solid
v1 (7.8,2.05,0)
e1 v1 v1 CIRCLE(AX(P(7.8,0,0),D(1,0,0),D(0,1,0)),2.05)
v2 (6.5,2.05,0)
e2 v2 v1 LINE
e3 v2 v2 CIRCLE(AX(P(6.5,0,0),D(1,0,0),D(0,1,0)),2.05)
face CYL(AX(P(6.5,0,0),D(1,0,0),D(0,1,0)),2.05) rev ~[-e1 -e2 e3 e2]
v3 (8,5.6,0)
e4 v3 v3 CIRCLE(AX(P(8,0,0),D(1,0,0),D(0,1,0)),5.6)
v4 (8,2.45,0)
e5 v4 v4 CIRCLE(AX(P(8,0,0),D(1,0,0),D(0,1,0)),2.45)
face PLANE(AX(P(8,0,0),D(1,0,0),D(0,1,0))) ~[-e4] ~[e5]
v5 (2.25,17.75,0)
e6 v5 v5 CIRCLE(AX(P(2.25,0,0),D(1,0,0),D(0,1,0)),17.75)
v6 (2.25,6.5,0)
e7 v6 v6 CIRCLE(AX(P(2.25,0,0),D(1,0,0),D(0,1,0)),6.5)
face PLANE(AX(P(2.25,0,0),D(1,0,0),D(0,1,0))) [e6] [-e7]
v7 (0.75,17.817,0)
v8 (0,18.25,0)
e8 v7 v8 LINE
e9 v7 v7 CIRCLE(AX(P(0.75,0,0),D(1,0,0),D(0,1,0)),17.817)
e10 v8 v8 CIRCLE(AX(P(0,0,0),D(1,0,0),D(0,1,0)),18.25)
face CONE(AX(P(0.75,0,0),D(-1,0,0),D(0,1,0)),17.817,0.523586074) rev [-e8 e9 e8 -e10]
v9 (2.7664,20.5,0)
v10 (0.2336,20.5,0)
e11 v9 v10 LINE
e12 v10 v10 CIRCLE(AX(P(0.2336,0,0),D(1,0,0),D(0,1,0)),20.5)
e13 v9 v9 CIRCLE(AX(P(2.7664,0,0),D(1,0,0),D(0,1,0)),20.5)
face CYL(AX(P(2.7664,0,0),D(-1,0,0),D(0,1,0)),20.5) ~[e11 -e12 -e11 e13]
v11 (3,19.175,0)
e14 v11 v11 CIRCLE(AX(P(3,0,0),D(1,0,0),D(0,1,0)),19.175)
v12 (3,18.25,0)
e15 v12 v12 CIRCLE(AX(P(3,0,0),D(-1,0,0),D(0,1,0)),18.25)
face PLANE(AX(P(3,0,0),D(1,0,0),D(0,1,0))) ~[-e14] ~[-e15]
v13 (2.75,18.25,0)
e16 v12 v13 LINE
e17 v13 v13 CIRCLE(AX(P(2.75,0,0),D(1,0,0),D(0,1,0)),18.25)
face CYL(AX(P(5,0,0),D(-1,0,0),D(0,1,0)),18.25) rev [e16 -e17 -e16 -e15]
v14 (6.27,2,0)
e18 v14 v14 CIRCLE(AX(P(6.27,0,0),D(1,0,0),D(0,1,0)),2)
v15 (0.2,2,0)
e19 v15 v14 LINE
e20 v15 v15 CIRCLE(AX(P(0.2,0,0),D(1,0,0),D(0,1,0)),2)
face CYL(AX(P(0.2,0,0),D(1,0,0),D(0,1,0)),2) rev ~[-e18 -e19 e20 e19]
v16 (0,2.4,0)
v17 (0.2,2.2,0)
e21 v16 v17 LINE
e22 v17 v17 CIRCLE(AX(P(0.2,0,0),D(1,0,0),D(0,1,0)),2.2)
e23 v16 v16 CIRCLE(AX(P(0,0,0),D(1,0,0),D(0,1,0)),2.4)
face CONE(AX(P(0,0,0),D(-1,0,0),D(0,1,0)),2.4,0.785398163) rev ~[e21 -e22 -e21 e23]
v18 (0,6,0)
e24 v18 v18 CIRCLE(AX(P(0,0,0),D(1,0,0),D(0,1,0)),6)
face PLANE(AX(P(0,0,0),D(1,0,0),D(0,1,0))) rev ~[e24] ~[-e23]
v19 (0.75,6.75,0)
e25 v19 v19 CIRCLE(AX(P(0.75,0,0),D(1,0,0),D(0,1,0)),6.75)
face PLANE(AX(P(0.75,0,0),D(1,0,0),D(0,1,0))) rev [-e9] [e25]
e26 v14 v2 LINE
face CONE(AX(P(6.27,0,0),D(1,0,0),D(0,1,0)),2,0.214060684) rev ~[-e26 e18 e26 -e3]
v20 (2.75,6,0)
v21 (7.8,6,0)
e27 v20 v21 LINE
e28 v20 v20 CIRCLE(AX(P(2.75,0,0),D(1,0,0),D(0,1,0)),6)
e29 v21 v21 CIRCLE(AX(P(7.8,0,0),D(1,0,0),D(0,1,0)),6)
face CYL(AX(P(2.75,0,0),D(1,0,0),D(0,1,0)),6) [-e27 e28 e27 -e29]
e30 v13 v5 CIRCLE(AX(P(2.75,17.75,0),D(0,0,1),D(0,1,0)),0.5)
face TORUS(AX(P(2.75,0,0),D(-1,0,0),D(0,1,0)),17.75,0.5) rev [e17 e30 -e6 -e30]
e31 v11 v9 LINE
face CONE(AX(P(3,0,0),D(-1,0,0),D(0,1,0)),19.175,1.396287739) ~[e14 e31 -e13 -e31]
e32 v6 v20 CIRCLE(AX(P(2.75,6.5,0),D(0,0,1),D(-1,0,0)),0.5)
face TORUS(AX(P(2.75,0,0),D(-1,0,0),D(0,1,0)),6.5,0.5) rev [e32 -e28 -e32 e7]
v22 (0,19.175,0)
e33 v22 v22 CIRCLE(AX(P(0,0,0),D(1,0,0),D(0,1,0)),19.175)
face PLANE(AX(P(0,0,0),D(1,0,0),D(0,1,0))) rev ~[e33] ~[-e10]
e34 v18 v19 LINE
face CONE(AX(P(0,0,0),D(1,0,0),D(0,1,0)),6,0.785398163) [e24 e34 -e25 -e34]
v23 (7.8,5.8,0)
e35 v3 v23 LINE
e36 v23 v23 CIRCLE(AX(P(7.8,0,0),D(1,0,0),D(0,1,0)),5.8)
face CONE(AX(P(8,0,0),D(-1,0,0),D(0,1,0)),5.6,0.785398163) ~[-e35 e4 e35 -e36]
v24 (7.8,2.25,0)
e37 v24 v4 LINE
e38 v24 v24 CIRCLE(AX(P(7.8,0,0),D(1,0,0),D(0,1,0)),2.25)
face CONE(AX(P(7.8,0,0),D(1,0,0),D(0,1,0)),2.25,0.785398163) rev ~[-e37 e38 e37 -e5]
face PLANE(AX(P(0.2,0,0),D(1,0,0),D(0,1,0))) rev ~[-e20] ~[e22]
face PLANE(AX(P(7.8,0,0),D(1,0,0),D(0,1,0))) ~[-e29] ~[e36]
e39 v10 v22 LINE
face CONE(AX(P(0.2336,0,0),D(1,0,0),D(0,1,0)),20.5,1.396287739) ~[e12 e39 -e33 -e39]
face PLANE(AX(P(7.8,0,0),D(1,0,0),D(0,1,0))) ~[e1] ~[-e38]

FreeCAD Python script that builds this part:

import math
import FreeCAD as App
import Part
import Sketcher

V = App.Vector
Q = App.Units.Quantity


def add_polygon(sketch, points):
    """Adds a closed chain of lines whose ends are joined by coincident constraints."""
    first, n = sketch.GeometryCount, len(points)
    for a, b in zip(points, points[1:] + points[:1]):
        sketch.addGeometry(Part.LineSegment(App.Vector(*a, 0), App.Vector(*b, 0)), False)
    for i in range(n):
        sketch.addConstraint(Sketcher.Constraint("Coincident", first + i, 2, first + (i + 1) % n, 1))

doc = App.newDocument("Part")
body = doc.addObject("PartDesign::Body", "Body")

# Sketch on XY plane
sketch1 = body.newObject("Sketcher::SketchObject", "Sketch")
sketch1.AttachmentSupport = (doc.getObject("XY_Plane"), [""])
sketch1.MapMode = "FlatFace"
sketch1.addGeometry(Part.LineSegment(V(0, 19.175, 0), V(0, 2.4, 0)), False)
sketch1.addGeometry(Part.LineSegment(V(0, 2.4, 0), V(0.2, 2.2, 0)), False)
sketch1.addGeometry(Part.LineSegment(V(0.2, 2.2, 0), V(0.2, 2, 0)), False)
sketch1.addGeometry(Part.LineSegment(V(0.2, 2, 0), V(6.27, 2, 0)), False)
sketch1.addGeometry(Part.LineSegment(V(6.27, 2, 0), V(6.5, 2.05, 0)), False)
sketch1.addGeometry(Part.LineSegment(V(6.5, 2.05, 0), V(7.8, 2.05, 0)), False)
sketch1.addGeometry(Part.LineSegment(V(7.8, 2.05, 0), V(7.8, 2.25, 0)), False)
sketch1.addGeometry(Part.LineSegment(V(7.8, 2.25, 0), V(8, 2.45, 0)), False)
sketch1.addGeometry(Part.LineSegment(V(8, 2.45, 0), V(8, 5.6, 0)), False)
sketch1.addGeometry(Part.LineSegment(V(8, 5.6, 0), V(7.8, 5.8, 0)), False)
sketch1.addGeometry(Part.LineSegment(V(7.8, 5.8, 0), V(7.8, 6, 0)), False)
sketch1.addGeometry(Part.LineSegment(V(7.8, 6, 0), V(3.5, 6, 0)), False)
sketch1.addGeometry(Part.ArcOfCircle(Part.Circle(V(3.5, 6.5, 0), V(0, 0, 1), 0.5), math.radians(180), math.radians(270)), False)
sketch1.addGeometry(Part.LineSegment(V(3, 6.5, 0), V(3, 19.175, 0)), False)
sketch1.addGeometry(Part.LineSegment(V(3, 19.175, 0), V(2.7664, 20.5, 0)), False)
sketch1.addGeometry(Part.LineSegment(V(2.7664, 20.5, 0), V(0.2336, 20.5, 0)), False)
sketch1.addGeometry(Part.LineSegment(V(0.2336, 20.5, 0), V(0, 19.175, 0)), False)
sketch1.addConstraint(Sketcher.Constraint("Coincident", 0, 2, 1, 1))
sketch1.addConstraint(Sketcher.Constraint("Coincident", 1, 2, 2, 1))
sketch1.addConstraint(Sketcher.Constraint("Coincident", 2, 2, 3, 1))
sketch1.addConstraint(Sketcher.Constraint("Coincident", 3, 2, 4, 1))
sketch1.addConstraint(Sketcher.Constraint("Coincident", 4, 2, 5, 1))
sketch1.addConstraint(Sketcher.Constraint("Coincident", 5, 2, 6, 1))
sketch1.addConstraint(Sketcher.Constraint("Coincident", 6, 2, 7, 1))
sketch1.addConstraint(Sketcher.Constraint("Coincident", 7, 2, 8, 1))
sketch1.addConstraint(Sketcher.Constraint("Coincident", 8, 2, 9, 1))
sketch1.addConstraint(Sketcher.Constraint("Coincident", 9, 2, 10, 1))
sketch1.addConstraint(Sketcher.Constraint("Coincident", 10, 2, 11, 1))
sketch1.addConstraint(Sketcher.Constraint("Tangent", 11, 2, 12, 2))
sketch1.addConstraint(Sketcher.Constraint("Tangent", 12, 1, 13, 1))
sketch1.addConstraint(Sketcher.Constraint("Coincident", 13, 2, 14, 1))
sketch1.addConstraint(Sketcher.Constraint("Coincident", 14, 2, 15, 1))
sketch1.addConstraint(Sketcher.Constraint("Coincident", 15, 2, 16, 1))
sketch1.addConstraint(Sketcher.Constraint("Coincident", 16, 2, 0, 1))
sketch1.addConstraint(Sketcher.Constraint("Vertical", 0))
sketch1.addConstraint(Sketcher.Constraint("Vertical", 2))
sketch1.addConstraint(Sketcher.Constraint("Horizontal", 3))
sketch1.addConstraint(Sketcher.Constraint("Horizontal", 5))
sketch1.addConstraint(Sketcher.Constraint("Vertical", 6))
sketch1.addConstraint(Sketcher.Constraint("Vertical", 8))
sketch1.addConstraint(Sketcher.Constraint("Vertical", 10))
sketch1.addConstraint(Sketcher.Constraint("Horizontal", 11))
sketch1.addConstraint(Sketcher.Constraint("Vertical", 13))
sketch1.addConstraint(Sketcher.Constraint("Horizontal", 15))
sketch1.addConstraint(Sketcher.Constraint("PointOnObject", 0, 2, -2))
sketch1.addConstraint(Sketcher.Constraint("Perpendicular", 1, 7))
sketch1.addConstraint(Sketcher.Constraint("Perpendicular", 7, 9))
sketch1.addConstraint(Sketcher.Constraint("Horizontal", 13, 2, 16, 2))
sketch1.addConstraint(Sketcher.Constraint("Vertical", 6, 2, 9, 2))
sketch1.addConstraint(Sketcher.Constraint("Equal", 2, 6))
sketch1.addConstraint(Sketcher.Constraint("Equal", 6, 10))
sketch1.addConstraint(Sketcher.Constraint("Equal", 1, 7))
sketch1.addConstraint(Sketcher.Constraint("Equal", 7, 9))
sketch1.addConstraint(Sketcher.Constraint("Equal", 14, 16))
sketch1.addConstraint(Sketcher.Constraint("Radius", 12, 0.5))
sketch1.addConstraint(Sketcher.Constraint("DistanceX", 5, 1, 5, 2, 1.3))
sketch1.addConstraint(Sketcher.Constraint("DistanceX", 11, 2, 11, 1, 4.3))
sketch1.addConstraint(Sketcher.Constraint("DistanceY", 2, 2, 2, 1, 0.2))
sketch1.addConstraint(Sketcher.Constraint("DistanceY", -1, 1, 2, 2, 2.0))
sketch1.addConstraint(Sketcher.Constraint("DistanceX", -1, 1, 7, 2, 8.0))
sketch1.addConstraint(Sketcher.Constraint("DistanceY", -1, 1, 10, 2, 6.0))
sketch1.addConstraint(Sketcher.Constraint("DistanceX", -1, 1, 12, 1, 3.0))
sketch1.addConstraint(Sketcher.Constraint("DistanceY", 12, 1, 14, 2, 14.0))
sketch1.addConstraint(Sketcher.Constraint("DistanceX", 3, 1, 3, 2, 6.07))
sketch1.addConstraint(Sketcher.Constraint("DistanceY", 8, 1, 8, 2, 3.15))
sketch1.addConstraint(Sketcher.Constraint("DistanceY", 0, 2, 0, 1, 16.775))
sketch1.addConstraint(Sketcher.Constraint("DistanceX", 15, 2, 15, 1, 2.5328))
revolution = body.newObject("PartDesign::Revolution", "Revolution")
revolution.Profile = sketch1
revolution.ReferenceAxis = (sketch1, ["H_Axis"])
revolution.Angle = 360

# Sketch on XY plane
sketch2 = body.newObject("Sketcher::SketchObject", "Sketch001")
sketch2.AttachmentSupport = (doc.getObject("XY_Plane"), [""])
sketch2.MapMode = "FlatFace"
add_polygon(sketch2, [(0, 18.25), (-2, 18.25), (-2, 6), (0, 6), (0.75, 6.75), (0.75, 17.817)])  # lines 0-5
sketch2.addConstraint(Sketcher.Constraint("Horizontal", 0))
sketch2.addConstraint(Sketcher.Constraint("Vertical", 1))
sketch2.addConstraint(Sketcher.Constraint("Horizontal", 2))
sketch2.addConstraint(Sketcher.Constraint("Vertical", 4))
sketch2.addConstraint(Sketcher.Constraint("PointOnObject", 2, 2, -2))
sketch2.addConstraint(Sketcher.Constraint("PointOnObject", 5, 2, -2))
sketch2.addConstraint(Sketcher.Constraint("DistanceX", 0, 2, 0, 1, 2.0))
sketch2.addConstraint(Sketcher.Constraint("Angle", 3, Q("45 deg")))
sketch2.addConstraint(Sketcher.Constraint("Angle", 5, Q("150.0007 deg")))
sketch2.addConstraint(Sketcher.Constraint("DistanceY", -1, 1, 1, 2, 6.0))
sketch2.addConstraint(Sketcher.Constraint("DistanceY", 1, 2, 1, 1, 12.25))
sketch2.addConstraint(Sketcher.Constraint("DistanceY", 3, 2, 0, 2, 11.5))
groove = body.newObject("PartDesign::Groove", "Groove")
groove.Profile = sketch2
groove.ReferenceAxis = (sketch2, ["H_Axis"])
groove.Angle = 360

# Sketch on XY plane
sketch3 = body.newObject("Sketcher::SketchObject", "Sketch002")
sketch3.AttachmentSupport = (doc.getObject("XY_Plane"), [""])
sketch3.MapMode = "FlatFace"
sketch3.addGeometry(Part.ArcOfCircle(Part.Circle(V(2.75, 17.75, 0), V(0, 0, 1), 0.5), math.radians(90), math.radians(180)), False)
sketch3.addGeometry(Part.LineSegment(V(2.25, 17.75, 0), V(2.25, 6.5, 0)), False)
sketch3.addGeometry(Part.ArcOfCircle(Part.Circle(V(2.75, 6.5, 0), V(0, 0, 1), 0.5), math.radians(180), math.radians(270)), False)
sketch3.addGeometry(Part.LineSegment(V(2.75, 6, 0), V(5, 6, 0)), False)
sketch3.addGeometry(Part.LineSegment(V(5, 6, 0), V(5, 18.25, 0)), False)
sketch3.addGeometry(Part.LineSegment(V(5, 18.25, 0), V(2.75, 18.25, 0)), False)
sketch3.addConstraint(Sketcher.Constraint("Tangent", 0, 2, 1, 1))
sketch3.addConstraint(Sketcher.Constraint("Tangent", 1, 2, 2, 1))
sketch3.addConstraint(Sketcher.Constraint("Tangent", 2, 2, 3, 1))
sketch3.addConstraint(Sketcher.Constraint("Coincident", 3, 2, 4, 1))
sketch3.addConstraint(Sketcher.Constraint("Coincident", 4, 2, 5, 1))
sketch3.addConstraint(Sketcher.Constraint("Tangent", 5, 2, 0, 1))
sketch3.addConstraint(Sketcher.Constraint("Vertical", 1))
sketch3.addConstraint(Sketcher.Constraint("Horizontal", 3))
sketch3.addConstraint(Sketcher.Constraint("Vertical", 4))
sketch3.addConstraint(Sketcher.Constraint("Horizontal", 5))
sketch3.addConstraint(Sketcher.Constraint("Equal", 0, 2))
sketch3.addConstraint(Sketcher.Constraint("Radius", 0, 0.5))
sketch3.addConstraint(Sketcher.Constraint("DistanceY", -1, 1, 2, 2, 6.0))
sketch3.addConstraint(Sketcher.Constraint("DistanceX", -1, 1, 3, 2, 5.0))
sketch3.addConstraint(Sketcher.Constraint("DistanceX", 3, 1, 3, 2, 2.25))
sketch3.addConstraint(Sketcher.Constraint("DistanceY", 1, 2, 1, 1, 11.25))
groove2 = body.newObject("PartDesign::Groove", "Groove001")
groove2.Profile = sketch3
groove2.ReferenceAxis = (sketch3, ["H_Axis"])
groove2.Angle = 360

doc.recompute()
